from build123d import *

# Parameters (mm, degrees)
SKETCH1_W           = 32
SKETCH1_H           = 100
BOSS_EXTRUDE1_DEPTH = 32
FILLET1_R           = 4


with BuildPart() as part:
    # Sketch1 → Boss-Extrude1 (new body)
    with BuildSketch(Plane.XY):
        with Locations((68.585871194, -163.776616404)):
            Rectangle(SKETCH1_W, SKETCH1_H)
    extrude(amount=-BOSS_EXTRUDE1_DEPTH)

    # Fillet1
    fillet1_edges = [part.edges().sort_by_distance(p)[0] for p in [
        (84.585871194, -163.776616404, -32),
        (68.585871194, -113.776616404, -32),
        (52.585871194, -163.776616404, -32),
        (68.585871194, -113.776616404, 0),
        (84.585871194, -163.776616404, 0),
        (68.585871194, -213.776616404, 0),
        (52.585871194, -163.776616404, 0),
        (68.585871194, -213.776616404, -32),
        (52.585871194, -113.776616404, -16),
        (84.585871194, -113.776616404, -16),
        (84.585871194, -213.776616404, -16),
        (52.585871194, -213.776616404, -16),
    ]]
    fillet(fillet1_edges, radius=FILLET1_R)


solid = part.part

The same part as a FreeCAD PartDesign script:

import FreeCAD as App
import Part
import Sketcher

doc = App.newDocument("Part")
body = doc.addObject("PartDesign::Body", "Body")

# Sketch on XY plane
sketch1 = body.newObject("Sketcher::SketchObject", "Sketch")
sketch1.AttachmentSupport = (doc.getObject("XY_Plane"), [""])
sketch1.MapMode = "FlatFace"
sketch1.addGeometry([
    Part.LineSegment(App.Vector(53, -114, 0), App.Vector(53, -214, 0)),
    Part.LineSegment(App.Vector(53, -214, 0), App.Vector(85, -214, 0)),
    Part.LineSegment(App.Vector(85, -214, 0), App.Vector(85, -114, 0)),
    Part.LineSegment(App.Vector(85, -114, 0), App.Vector(53, -114, 0)),
], False)
sketch1.addConstraint([
    Sketcher.Constraint("Coincident", 0, 2, 1, 1),
    Sketcher.Constraint("Coincident", 1, 2, 2, 1),
    Sketcher.Constraint("Coincident", 2, 2, 3, 1),
    Sketcher.Constraint("Coincident", 3, 2, 0, 1),
    Sketcher.Constraint("Vertical", 0),
    Sketcher.Constraint("Horizontal", 1),
    Sketcher.Constraint("Vertical", 2),
    Sketcher.Constraint("Horizontal", 3),
    Sketcher.Constraint("DistanceX", 1, 1, 1, 2, 32.0),
    Sketcher.Constraint("DistanceY", 0, 2, 0, 1, 100.0),
    Sketcher.Constraint("DistanceX", -1, 1, 0, 2, 52.585871),
    Sketcher.Constraint("DistanceY", 0, 2, -1, 1, 213.776616),
])
pad1 = body.newObject("PartDesign::Pad", "Pad")
pad1.Profile = sketch1
pad1.Length = 32
pad1.Reversed = True
doc.recompute()

fillet = body.newObject("PartDesign::Fillet", "Fillet")
fillet.Base = (pad1, ["Edge1"])
fillet.UseAllEdges = True
fillet.Radius = 4

doc.recompute()
